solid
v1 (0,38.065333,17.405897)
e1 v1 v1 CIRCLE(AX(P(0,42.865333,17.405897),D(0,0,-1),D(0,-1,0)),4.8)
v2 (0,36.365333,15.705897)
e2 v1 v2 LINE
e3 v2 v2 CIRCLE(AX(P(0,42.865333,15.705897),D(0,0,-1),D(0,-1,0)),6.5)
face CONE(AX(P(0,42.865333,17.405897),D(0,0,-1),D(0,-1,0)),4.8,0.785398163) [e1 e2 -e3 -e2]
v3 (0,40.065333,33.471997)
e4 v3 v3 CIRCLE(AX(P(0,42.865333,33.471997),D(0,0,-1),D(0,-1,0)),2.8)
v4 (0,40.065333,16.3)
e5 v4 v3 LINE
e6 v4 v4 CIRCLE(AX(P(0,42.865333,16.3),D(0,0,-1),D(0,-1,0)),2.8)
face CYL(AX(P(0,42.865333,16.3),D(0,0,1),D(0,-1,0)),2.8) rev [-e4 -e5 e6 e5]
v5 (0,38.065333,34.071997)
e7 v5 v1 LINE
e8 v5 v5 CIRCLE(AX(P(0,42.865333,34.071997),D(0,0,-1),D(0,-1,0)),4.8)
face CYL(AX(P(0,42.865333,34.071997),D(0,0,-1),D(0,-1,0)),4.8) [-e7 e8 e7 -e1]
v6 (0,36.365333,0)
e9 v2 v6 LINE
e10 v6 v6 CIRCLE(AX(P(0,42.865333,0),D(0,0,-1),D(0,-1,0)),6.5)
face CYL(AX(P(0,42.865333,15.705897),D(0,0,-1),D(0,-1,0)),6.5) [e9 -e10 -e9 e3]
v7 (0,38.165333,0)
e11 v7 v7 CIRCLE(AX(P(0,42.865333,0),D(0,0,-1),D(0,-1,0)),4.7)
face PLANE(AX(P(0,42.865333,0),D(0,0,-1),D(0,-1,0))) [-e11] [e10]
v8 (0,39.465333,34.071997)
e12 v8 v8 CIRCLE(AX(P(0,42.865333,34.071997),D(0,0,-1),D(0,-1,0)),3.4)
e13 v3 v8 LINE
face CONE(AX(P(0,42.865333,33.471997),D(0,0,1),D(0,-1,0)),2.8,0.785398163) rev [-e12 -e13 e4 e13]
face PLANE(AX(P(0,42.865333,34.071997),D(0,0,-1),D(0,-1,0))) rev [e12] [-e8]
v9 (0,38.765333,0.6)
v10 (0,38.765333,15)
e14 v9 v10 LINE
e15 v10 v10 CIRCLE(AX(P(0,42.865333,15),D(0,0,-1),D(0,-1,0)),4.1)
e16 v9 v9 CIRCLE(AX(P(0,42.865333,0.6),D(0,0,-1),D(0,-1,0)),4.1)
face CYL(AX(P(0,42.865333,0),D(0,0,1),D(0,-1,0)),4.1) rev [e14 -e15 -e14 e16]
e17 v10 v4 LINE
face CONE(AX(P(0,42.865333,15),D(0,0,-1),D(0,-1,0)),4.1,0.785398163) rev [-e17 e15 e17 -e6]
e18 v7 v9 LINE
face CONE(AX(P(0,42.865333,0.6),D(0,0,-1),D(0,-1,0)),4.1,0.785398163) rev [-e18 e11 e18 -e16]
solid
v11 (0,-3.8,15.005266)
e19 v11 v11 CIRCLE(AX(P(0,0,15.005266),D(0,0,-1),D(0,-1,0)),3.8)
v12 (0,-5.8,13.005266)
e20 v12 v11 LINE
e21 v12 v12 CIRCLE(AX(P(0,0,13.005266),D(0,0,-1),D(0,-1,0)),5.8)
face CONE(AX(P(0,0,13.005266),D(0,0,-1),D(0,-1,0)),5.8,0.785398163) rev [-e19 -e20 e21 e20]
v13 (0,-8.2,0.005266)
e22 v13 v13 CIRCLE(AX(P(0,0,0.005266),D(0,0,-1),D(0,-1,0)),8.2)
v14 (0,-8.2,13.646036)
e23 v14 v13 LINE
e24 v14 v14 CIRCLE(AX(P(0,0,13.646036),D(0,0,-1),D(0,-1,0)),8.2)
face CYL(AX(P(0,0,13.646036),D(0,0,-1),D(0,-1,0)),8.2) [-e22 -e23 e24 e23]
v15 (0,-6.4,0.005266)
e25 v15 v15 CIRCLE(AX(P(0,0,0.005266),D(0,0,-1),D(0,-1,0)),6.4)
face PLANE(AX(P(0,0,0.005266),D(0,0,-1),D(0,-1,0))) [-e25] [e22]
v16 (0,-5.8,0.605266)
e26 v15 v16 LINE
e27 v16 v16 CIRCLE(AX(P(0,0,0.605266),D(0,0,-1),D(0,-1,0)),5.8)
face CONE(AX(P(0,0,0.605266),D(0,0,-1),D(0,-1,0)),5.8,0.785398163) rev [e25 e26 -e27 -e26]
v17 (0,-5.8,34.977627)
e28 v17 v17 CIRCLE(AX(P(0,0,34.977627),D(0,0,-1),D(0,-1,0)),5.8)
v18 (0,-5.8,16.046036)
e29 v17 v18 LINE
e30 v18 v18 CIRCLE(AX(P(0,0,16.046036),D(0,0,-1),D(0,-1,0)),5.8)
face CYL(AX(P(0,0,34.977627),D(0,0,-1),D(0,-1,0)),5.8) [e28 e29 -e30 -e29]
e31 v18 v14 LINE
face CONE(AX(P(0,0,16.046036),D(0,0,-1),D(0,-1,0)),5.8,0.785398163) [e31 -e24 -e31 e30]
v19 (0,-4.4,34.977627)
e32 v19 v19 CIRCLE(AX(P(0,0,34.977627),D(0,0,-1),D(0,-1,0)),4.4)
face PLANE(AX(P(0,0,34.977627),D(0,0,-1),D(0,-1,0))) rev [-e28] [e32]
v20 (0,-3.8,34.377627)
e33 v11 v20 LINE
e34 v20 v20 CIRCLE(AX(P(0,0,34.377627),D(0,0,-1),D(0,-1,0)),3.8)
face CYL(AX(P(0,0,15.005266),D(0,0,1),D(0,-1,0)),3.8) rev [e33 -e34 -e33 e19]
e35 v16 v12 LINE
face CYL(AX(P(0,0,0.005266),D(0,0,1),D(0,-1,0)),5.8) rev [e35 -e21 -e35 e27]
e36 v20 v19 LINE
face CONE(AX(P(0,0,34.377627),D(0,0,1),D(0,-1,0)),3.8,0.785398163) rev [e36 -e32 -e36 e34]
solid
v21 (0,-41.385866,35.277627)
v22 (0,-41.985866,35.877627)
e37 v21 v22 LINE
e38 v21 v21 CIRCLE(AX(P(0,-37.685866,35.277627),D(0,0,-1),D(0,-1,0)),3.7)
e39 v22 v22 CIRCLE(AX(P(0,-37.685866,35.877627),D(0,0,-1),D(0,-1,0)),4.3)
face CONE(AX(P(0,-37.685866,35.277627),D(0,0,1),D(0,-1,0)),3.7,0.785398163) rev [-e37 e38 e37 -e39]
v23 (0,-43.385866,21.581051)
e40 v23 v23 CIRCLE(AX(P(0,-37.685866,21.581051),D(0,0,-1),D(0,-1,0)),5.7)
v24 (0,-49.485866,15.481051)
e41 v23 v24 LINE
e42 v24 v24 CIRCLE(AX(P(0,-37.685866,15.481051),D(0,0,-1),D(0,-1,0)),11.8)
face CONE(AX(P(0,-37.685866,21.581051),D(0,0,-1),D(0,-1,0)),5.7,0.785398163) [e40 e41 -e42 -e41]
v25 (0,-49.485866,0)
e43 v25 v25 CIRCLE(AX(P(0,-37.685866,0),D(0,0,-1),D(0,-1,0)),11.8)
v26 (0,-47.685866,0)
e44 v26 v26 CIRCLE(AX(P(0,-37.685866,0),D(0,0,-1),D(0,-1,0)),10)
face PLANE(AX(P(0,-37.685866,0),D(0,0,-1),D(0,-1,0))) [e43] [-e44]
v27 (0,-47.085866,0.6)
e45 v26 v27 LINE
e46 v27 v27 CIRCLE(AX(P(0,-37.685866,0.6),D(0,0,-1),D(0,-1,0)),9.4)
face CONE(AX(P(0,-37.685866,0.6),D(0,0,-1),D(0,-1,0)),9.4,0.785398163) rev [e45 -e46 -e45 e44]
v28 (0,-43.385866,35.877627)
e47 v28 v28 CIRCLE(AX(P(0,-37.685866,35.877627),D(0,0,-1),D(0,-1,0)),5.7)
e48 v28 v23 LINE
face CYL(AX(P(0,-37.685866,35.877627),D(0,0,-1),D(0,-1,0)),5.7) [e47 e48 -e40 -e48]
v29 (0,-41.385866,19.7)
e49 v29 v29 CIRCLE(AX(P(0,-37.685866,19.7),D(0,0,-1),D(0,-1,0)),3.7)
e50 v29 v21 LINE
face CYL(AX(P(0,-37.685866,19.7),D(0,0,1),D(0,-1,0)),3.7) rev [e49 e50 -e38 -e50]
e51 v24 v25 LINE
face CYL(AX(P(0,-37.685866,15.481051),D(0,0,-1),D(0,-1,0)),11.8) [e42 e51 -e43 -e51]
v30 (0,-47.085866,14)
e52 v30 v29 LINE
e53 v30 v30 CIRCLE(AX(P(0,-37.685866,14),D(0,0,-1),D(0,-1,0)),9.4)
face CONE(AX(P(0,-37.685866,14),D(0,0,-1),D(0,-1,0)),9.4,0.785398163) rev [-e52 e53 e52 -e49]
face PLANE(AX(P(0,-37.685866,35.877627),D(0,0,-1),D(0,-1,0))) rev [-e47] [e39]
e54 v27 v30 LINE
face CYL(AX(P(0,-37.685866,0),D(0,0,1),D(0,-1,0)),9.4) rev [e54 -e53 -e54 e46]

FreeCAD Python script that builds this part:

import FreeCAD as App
import Part
import Sketcher
Q = App.Units.Quantity


def edges_at(feature, points):
    """Names of the edges that pass closest to the given points."""
    edges = feature.Shape.Edges
    near = lambda p: min(range(len(edges)), key=lambda i: edges[i].distToShape(Part.Vertex(*p))[0])
    return sorted({f"Edge{near(p) + 1}" for p in points})

doc = App.newDocument("Part")
params = doc.addObject("Spreadsheet::Sheet", "Params")
for row, (alias, value) in enumerate([
    ("sketch1_width", "2 mm"),
    ("sketch1_height", "13 mm"),
    ("sketch1_width2", "2.4 mm"),
    ("revolution_angle", "360 deg"),
    ("chamfer_size", "0.6 mm"),
    ("sketch2_width", "2 mm"),
    ("sketch2_height", "15 mm"),
    ("sketch2_width2", "2.4 mm"),
    ("revolution2_angle", "360 deg"),
    ("chamfer2_size", "0.6 mm"),
    ("sketch3_width", "2 mm"),
    ("sketch3_height", "14 mm"),
    ("sketch3_width2", "2.4 mm"),
    ("revolution3_angle", "360 deg"),
    ("chamfer3_size", "0.6 mm"),
], start=1):
    params.set(f"A{row}", alias)
    params.set(f"B{row}", "=" + value)
    params.setAlias(f"B{row}", alias)

body = doc.addObject("PartDesign::Body", "Body")

# Sketch on YZ plane
sketch1 = body.newObject("Sketcher::SketchObject", "Sketch")
sketch1.AttachmentSupport = (doc.getObject("YZ_Plane"), [""])
sketch1.MapMode = "FlatFace"
sketch1.addGeometry([
    Part.LineSegment(App.Vector(-8.2, 0.005266, 0), App.Vector(-5.8, 0.005266, 0)),  # 0
    Part.LineSegment(App.Vector(-5.8, 0.005266, 0), App.Vector(-5.8, 13.005266, 0)),  # 1
    Part.LineSegment(App.Vector(-5.8, 13.005266, 0), App.Vector(-3.8, 15.005266, 0)),  # 2
    Part.LineSegment(App.Vector(-3.8, 15.005266, 0), App.Vector(-3.8, 34.977627, 0)),  # 3
    Part.LineSegment(App.Vector(-3.8, 34.977627, 0), App.Vector(-5.8, 34.977627, 0)),  # 4
    Part.LineSegment(App.Vector(-5.8, 34.977627, 0), App.Vector(-5.8, 16.046036, 0)),  # 5
    Part.LineSegment(App.Vector(-5.8, 16.046036, 0), App.Vector(-8.2, 13.646036, 0)),  # 6
    Part.LineSegment(App.Vector(-8.2, 13.646036, 0), App.Vector(-8.2, 0.005266, 0)),  # 7
], False)
sketch1.addConstraint([
    Sketcher.Constraint("Coincident", 0, 2, 1, 1),
    Sketcher.Constraint("Coincident", 1, 2, 2, 1),
    Sketcher.Constraint("Coincident", 2, 2, 3, 1),
    Sketcher.Constraint("Coincident", 3, 2, 4, 1),
    Sketcher.Constraint("Coincident", 4, 2, 5, 1),
    Sketcher.Constraint("Coincident", 5, 2, 6, 1),
    Sketcher.Constraint("Coincident", 6, 2, 7, 1),
    Sketcher.Constraint("Coincident", 7, 2, 0, 1),
    Sketcher.Constraint("Horizontal", 0),
    Sketcher.Constraint("Vertical", 1),
    Sketcher.Constraint("Vertical", 3),
    Sketcher.Constraint("Horizontal", 4),
    Sketcher.Constraint("Vertical", 5),
    Sketcher.Constraint("Vertical", 7),
    Sketcher.Constraint("Parallel", 2, 6),
    Sketcher.Constraint("Vertical", 1, 2, 4, 2),
    Sketcher.Constraint("DistanceX", 4, 2, 4, 1, Q("2 mm")),
    Sketcher.Constraint("DistanceY", 1, 1, 1, 2, Q("13 mm")),
    Sketcher.Constraint("Angle", 2, Q("45 deg")),
    Sketcher.Constraint("DistanceX", 0, 1, 0, 2, Q("2.4 mm")),
    Sketcher.Constraint("DistanceX", 0, 2, -1, 1, Q("5.8 mm")),
    Sketcher.Constraint("DistanceY", 3, 1, 3, 2, Q("19.972361 mm")),
    Sketcher.Constraint("DistanceY", 5, 2, 5, 1, Q("18.931591 mm")),
    Sketcher.Constraint("DistanceY", -1, 1, 0, 2, Q("0.005266 mm")),
])
sketch1.setExpression("Constraints[16]", "Params.sketch1_width")
sketch1.setExpression("Constraints[17]", "Params.sketch1_height")
sketch1.setExpression("Constraints[19]", "Params.sketch1_width2")
revolution = body.newObject("PartDesign::Revolution", "Revolution")
revolution.Profile = sketch1
revolution.ReferenceAxis = (sketch1, ["V_Axis"])
revolution.setExpression("Angle", "Params.revolution_angle")
doc.recompute()

chamfer = body.newObject("PartDesign::Chamfer", "Chamfer")
chamfer.Base = (revolution, edges_at(revolution, [(0, 5.8, 0.005), (0, 3.8, 34.978)]))
chamfer.setExpression("Size", "Params.chamfer_size")
body2 = doc.addObject("PartDesign::Body", "Body001")

# Sketch on YZ plane
sketch2 = body2.newObject("Sketcher::SketchObject", "Sketch001")
sketch2.AttachmentSupport = (doc.getObject("YZ_Plane001"), [""])
sketch2.MapMode = "FlatFace"
sketch2.addGeometry([
    Part.LineSegment(App.Vector(36.365333, 0, 0), App.Vector(38.765333, 0, 0)),  # 0
    Part.LineSegment(App.Vector(38.765333, 0, 0), App.Vector(38.765333, 15, 0)),  # 1
    Part.LineSegment(App.Vector(38.765333, 15, 0), App.Vector(40.065333, 16.3, 0)),  # 2
    Part.LineSegment(App.Vector(40.065333, 16.3, 0), App.Vector(40.065333, 34.071997, 0)),  # 3
    Part.LineSegment(App.Vector(40.065333, 34.071997, 0), App.Vector(38.065333, 34.071997, 0)),  # 4
    Part.LineSegment(App.Vector(38.065333, 34.071997, 0), App.Vector(38.065333, 17.405897, 0)),  # 5
    Part.LineSegment(App.Vector(38.065333, 17.405897, 0), App.Vector(36.365333, 15.705897, 0)),  # 6
    Part.LineSegment(App.Vector(36.365333, 15.705897, 0), App.Vector(36.365333, 0, 0)),  # 7
], False)
sketch2.addGeometry(Part.LineSegment(App.Vector(42.865333, 34.071997, 0), App.Vector(42.865333, 0, 0)), True)  # axis
sketch2.addConstraint([
    Sketcher.Constraint("Coincident", 0, 2, 1, 1),
    Sketcher.Constraint("Coincident", 1, 2, 2, 1),
    Sketcher.Constraint("Coincident", 2, 2, 3, 1),
    Sketcher.Constraint("Coincident", 3, 2, 4, 1),
    Sketcher.Constraint("Coincident", 4, 2, 5, 1),
    Sketcher.Constraint("Coincident", 5, 2, 6, 1),
    Sketcher.Constraint("Coincident", 6, 2, 7, 1),
    Sketcher.Constraint("Coincident", 7, 2, 0, 1),
    Sketcher.Constraint("Horizontal", 0),
    Sketcher.Constraint("Vertical", 1),
    Sketcher.Constraint("Vertical", 3),
    Sketcher.Constraint("Horizontal", 4),
    Sketcher.Constraint("Vertical", 5),
    Sketcher.Constraint("Vertical", 7),
    Sketcher.Constraint("Vertical", 8),
    Sketcher.Constraint("PointOnObject", 0, 2, -1),
    Sketcher.Constraint("PointOnObject", 8, 2, -1),
    Sketcher.Constraint("Parallel", 2, 6),
    Sketcher.Constraint("Horizontal", 4, 2, 8, 1),
    Sketcher.Constraint("DistanceX", 4, 2, 4, 1, Q("2 mm")),
    Sketcher.Constraint("DistanceY", 1, 1, 1, 2, Q("15 mm")),
    Sketcher.Constraint("Angle", 2, Q("45 deg")),
    Sketcher.Constraint("DistanceX", 0, 1, 0, 2, Q("2.4 mm")),
    Sketcher.Constraint("DistanceY", -1, 1, 2, 2, Q("16.3 mm")),
    Sketcher.Constraint("DistanceX", 3, 2, 8, 1, Q("2.8 mm")),
    Sketcher.Constraint("DistanceY", 5, 2, 5, 1, Q("16.6661 mm")),
    Sketcher.Constraint("DistanceY", 3, 1, 3, 2, Q("17.771997 mm")),
    Sketcher.Constraint("DistanceX", -1, 1, 0, 2, Q("38.765333 mm")),
])
sketch2.setExpression("Constraints[19]", "Params.sketch2_width")
sketch2.setExpression("Constraints[20]", "Params.sketch2_height")
sketch2.setExpression("Constraints[22]", "Params.sketch2_width2")
revolution2 = body2.newObject("PartDesign::Revolution", "Revolution001")
revolution2.Profile = sketch2
revolution2.ReferenceAxis = (sketch2, ["Axis0"])
revolution2.setExpression("Angle", "Params.revolution2_angle")
doc.recompute()

chamfer2 = body2.newObject("PartDesign::Chamfer", "Chamfer001")
chamfer2.Base = (revolution2, edges_at(revolution2, [(0, 46.965, 0), (0, 45.665, 34.072)]))
chamfer2.setExpression("Size", "Params.chamfer2_size")
body3 = doc.addObject("PartDesign::Body", "Body002")

# Sketch on YZ plane
sketch3 = body3.newObject("Sketcher::SketchObject", "Sketch002")
sketch3.AttachmentSupport = (doc.getObject("YZ_Plane002"), [""])
sketch3.MapMode = "FlatFace"
sketch3.addGeometry([
    Part.LineSegment(App.Vector(-49.485866, 0, 0), App.Vector(-47.085866, 0, 0)),  # 0
    Part.LineSegment(App.Vector(-47.085866, 0, 0), App.Vector(-47.085866, 14, 0)),  # 1
    Part.LineSegment(App.Vector(-47.085866, 14, 0), App.Vector(-41.385866, 19.7, 0)),  # 2
    Part.LineSegment(App.Vector(-41.385866, 19.7, 0), App.Vector(-41.385866, 35.877627, 0)),  # 3
    Part.LineSegment(App.Vector(-41.385866, 35.877627, 0), App.Vector(-43.385866, 35.877627, 0)),  # 4
    Part.LineSegment(App.Vector(-43.385866, 35.877627, 0), App.Vector(-43.385866, 21.581051, 0)),  # 5
    Part.LineSegment(App.Vector(-43.385866, 21.581051, 0), App.Vector(-49.485866, 15.481051, 0)),  # 6
    Part.LineSegment(App.Vector(-49.485866, 15.481051, 0), App.Vector(-49.485866, 0, 0)),  # 7
], False)
sketch3.addGeometry(Part.LineSegment(App.Vector(-37.685866, 35.877627, 0), App.Vector(-37.685866, 0, 0)), True)  # axis
sketch3.addConstraint([
    Sketcher.Constraint("Coincident", 0, 2, 1, 1),
    Sketcher.Constraint("Coincident", 1, 2, 2, 1),
    Sketcher.Constraint("Coincident", 2, 2, 3, 1),
    Sketcher.Constraint("Coincident", 3, 2, 4, 1),
    Sketcher.Constraint("Coincident", 4, 2, 5, 1),
    Sketcher.Constraint("Coincident", 5, 2, 6, 1),
    Sketcher.Constraint("Coincident", 6, 2, 7, 1),
    Sketcher.Constraint("Coincident", 7, 2, 0, 1),
    Sketcher.Constraint("Horizontal", 0),
    Sketcher.Constraint("Vertical", 1),
    Sketcher.Constraint("Vertical", 3),
    Sketcher.Constraint("Horizontal", 4),
    Sketcher.Constraint("Vertical", 5),
    Sketcher.Constraint("Vertical", 7),
    Sketcher.Constraint("Vertical", 8),
    Sketcher.Constraint("PointOnObject", 0, 2, -1),
    Sketcher.Constraint("PointOnObject", 8, 2, -1),
    Sketcher.Constraint("Parallel", 2, 6),
    Sketcher.Constraint("Horizontal", 4, 2, 8, 1),
    Sketcher.Constraint("DistanceX", 4, 2, 4, 1, Q("2 mm")),
    Sketcher.Constraint("DistanceY", 1, 1, 1, 2, Q("14 mm")),
    Sketcher.Constraint("Angle", 2, Q("45 deg")),
    Sketcher.Constraint("DistanceX", 0, 1, 0, 2, Q("2.4 mm")),
    Sketcher.Constraint("DistanceY", -1, 1, 2, 2, Q("19.7 mm")),
    Sketcher.Constraint("DistanceX", 3, 2, 8, 1, Q("3.7 mm")),
    Sketcher.Constraint("DistanceY", 7, 2, 7, 1, Q("15.481051 mm")),
    Sketcher.Constraint("DistanceY", 3, 1, 3, 2, Q("16.177627 mm")),
    Sketcher.Constraint("DistanceX", 0, 2, -1, 1, Q("47.085866 mm")),
])
sketch3.setExpression("Constraints[19]", "Params.sketch3_width")
sketch3.setExpression("Constraints[20]", "Params.sketch3_height")
sketch3.setExpression("Constraints[22]", "Params.sketch3_width2")
revolution3 = body3.newObject("PartDesign::Revolution", "Revolution002")
revolution3.Profile = sketch3
revolution3.ReferenceAxis = (sketch3, ["Axis0"])
revolution3.setExpression("Angle", "Params.revolution3_angle")
doc.recompute()

chamfer3 = body3.newObject("PartDesign::Chamfer", "Chamfer002")
chamfer3.Base = (revolution3, edges_at(revolution3, [(0, -33.986, 35.878), (0, -28.286, 0)]))
chamfer3.setExpression("Size", "Params.chamfer3_size")

doc.recompute()
